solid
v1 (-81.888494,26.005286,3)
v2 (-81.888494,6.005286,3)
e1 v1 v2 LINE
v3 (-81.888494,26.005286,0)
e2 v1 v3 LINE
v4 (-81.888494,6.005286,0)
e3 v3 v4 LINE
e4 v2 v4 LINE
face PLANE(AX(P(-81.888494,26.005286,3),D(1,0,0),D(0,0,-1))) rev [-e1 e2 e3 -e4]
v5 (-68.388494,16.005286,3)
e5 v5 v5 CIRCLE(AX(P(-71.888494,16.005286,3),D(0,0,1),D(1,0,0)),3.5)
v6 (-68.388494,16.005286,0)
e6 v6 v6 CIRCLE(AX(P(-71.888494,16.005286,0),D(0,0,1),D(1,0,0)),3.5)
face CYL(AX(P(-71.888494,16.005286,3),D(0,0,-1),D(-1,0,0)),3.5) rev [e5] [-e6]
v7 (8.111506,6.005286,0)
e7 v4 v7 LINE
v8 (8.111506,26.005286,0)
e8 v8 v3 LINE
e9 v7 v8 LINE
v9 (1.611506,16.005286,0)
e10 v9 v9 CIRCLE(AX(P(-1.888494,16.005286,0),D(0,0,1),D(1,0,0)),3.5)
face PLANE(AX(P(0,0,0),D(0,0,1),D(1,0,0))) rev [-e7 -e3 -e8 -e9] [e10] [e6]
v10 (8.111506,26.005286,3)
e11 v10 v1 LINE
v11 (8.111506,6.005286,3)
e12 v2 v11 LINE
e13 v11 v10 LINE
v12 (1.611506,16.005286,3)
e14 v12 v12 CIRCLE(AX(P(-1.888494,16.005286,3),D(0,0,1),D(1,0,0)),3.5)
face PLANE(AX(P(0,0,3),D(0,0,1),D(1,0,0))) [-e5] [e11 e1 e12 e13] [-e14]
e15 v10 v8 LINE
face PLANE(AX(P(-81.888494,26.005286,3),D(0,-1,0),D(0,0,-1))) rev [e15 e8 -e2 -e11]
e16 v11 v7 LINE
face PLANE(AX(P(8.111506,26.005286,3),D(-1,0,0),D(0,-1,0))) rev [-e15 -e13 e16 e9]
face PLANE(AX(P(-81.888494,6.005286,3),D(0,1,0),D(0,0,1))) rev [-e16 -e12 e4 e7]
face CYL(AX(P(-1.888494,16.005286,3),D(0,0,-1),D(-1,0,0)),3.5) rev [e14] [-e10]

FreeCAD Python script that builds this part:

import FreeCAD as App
import Part
import Sketcher

V = App.Vector
Q = App.Units.Quantity


def add_polygon(sketch, points):
    """Adds a closed chain of lines whose ends are joined by coincident constraints."""
    first, n = sketch.GeometryCount, len(points)
    for a, b in zip(points, points[1:] + points[:1]):
        sketch.addGeometry(Part.LineSegment(App.Vector(*a, 0), App.Vector(*b, 0)), False)
    for i in range(n):
        sketch.addConstraint(Sketcher.Constraint("Coincident", first + i, 2, first + (i + 1) % n, 1))

doc = App.newDocument("Part")
body = doc.addObject("PartDesign::Body", "Body")

# Sketch on XY plane
sketch1 = body.newObject("Sketcher::SketchObject", "Sketch")
sketch1.AttachmentSupport = (doc.getObject("XY_Plane"), [""])
sketch1.MapMode = "FlatFace"
add_polygon(sketch1, [(-81.9, 26), (-81.9, 6), (8.1, 6), (8.1, 26)])  # lines 0-3
sketch1.addGeometry(Part.Circle(V(-71.9, 16, 0), V(0, 0, 1), 3.5), False)  # 4
sketch1.addGeometry(Part.Circle(V(-1.9, 16, 0), V(0, 0, 1), 3.5), False)  # 5
sketch1.addConstraint(Sketcher.Constraint("Vertical", 0))
sketch1.addConstraint(Sketcher.Constraint("Horizontal", 1))
sketch1.addConstraint(Sketcher.Constraint("Vertical", 2))
sketch1.addConstraint(Sketcher.Constraint("Horizontal", 3))
sketch1.addConstraint(Sketcher.Constraint("Equal", 4, 5))
sketch1.addConstraint(Sketcher.Constraint("Horizontal", 4, 3, 5, 3))
sketch1.addConstraint(Sketcher.Constraint("Diameter", 4, Q("7 mm")))
sketch1.addConstraint(Sketcher.Constraint("DistanceX", 1, 1, 1, 2, Q("90 mm")))
sketch1.addConstraint(Sketcher.Constraint("DistanceY", 0, 2, 0, 1, Q("20 mm")))
sketch1.addConstraint(Sketcher.Constraint("DistanceX", 4, 3, 5, 3, Q("70 mm")))
sketch1.addConstraint(Sketcher.Constraint("DistanceX", 0, 2, 4, 3, Q("10 mm")))
sketch1.addConstraint(Sketcher.Constraint("DistanceY", 0, 2, 4, 3, Q("10 mm")))
sketch1.addConstraint(Sketcher.Constraint("DistanceX", 4, 3, -1, 1, Q("71.888494 mm")))
sketch1.addConstraint(Sketcher.Constraint("DistanceY", -1, 1, 4, 3, Q("16.005286 mm")))
pad1 = body.newObject("PartDesign::Pad", "Pad")
pad1.Profile = sketch1
pad1.Length = 3

doc.recompute()
